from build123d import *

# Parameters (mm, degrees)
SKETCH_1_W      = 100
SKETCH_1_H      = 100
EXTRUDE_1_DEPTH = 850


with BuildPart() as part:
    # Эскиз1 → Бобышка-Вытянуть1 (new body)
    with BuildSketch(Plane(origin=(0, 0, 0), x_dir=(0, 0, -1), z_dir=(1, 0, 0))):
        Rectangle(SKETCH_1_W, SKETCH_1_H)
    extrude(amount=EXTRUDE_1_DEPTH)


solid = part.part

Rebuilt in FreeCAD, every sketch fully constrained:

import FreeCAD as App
import Part
import Sketcher
from FreeCAD import Vector
Q = App.Units.Quantity


def add_polygon(sketch, points):
    """Adds a closed chain of lines whose ends are joined by coincident constraints."""
    first, n = sketch.GeometryCount, len(points)
    for a, b in zip(points, points[1:] + points[:1]):
        sketch.addGeometry(Part.LineSegment(App.Vector(*a, 0), App.Vector(*b, 0)), False)
    for i in range(n):
        sketch.addConstraint(Sketcher.Constraint("Coincident", first + i, 2, first + (i + 1) % n, 1))

doc = App.newDocument("Part")
params = doc.addObject("Spreadsheet::Sheet", "Params")
for row, (alias, value) in enumerate([
    ("sketch1_width", "100 mm"),
    ("pad1_length", "850 mm"),
], start=1):
    params.set(f"A{row}", alias)
    params.set(f"B{row}", "=" + value)
    params.setAlias(f"B{row}", alias)

body = doc.addObject("PartDesign::Body", "Body")

sketch1 = body.newObject("Sketcher::SketchObject", "Sketch")
sketch1.AttachmentSupport = (doc.getObject("YZ_Plane"), [""])
sketch1.MapMode = "FlatFace"
add_polygon(sketch1, [(50, 50), (-50, 50), (-50, -50), (50, -50)])
sketch1.addConstraint([
    Sketcher.Constraint("Horizontal", 0),
    Sketcher.Constraint("Vertical", 1),
    Sketcher.Constraint("Horizontal", 2),
    Sketcher.Constraint("Vertical", 3),
    Sketcher.Constraint("Symmetric", 0, 2, 2, 2, -1, 1),
    Sketcher.Constraint("Equal", 2, 1),
    Sketcher.Constraint("DistanceX", 0, 2, 0, 1, Q("100 mm")),
])
sketch1.setExpression("Constraints[10]", "Params.sketch1_width")
pad1 = body.newObject("PartDesign::Pad", "Pad")
pad1.Profile = sketch1
pad1.setExpression("Length", "Params.pad1_length")

doc.recompute()
